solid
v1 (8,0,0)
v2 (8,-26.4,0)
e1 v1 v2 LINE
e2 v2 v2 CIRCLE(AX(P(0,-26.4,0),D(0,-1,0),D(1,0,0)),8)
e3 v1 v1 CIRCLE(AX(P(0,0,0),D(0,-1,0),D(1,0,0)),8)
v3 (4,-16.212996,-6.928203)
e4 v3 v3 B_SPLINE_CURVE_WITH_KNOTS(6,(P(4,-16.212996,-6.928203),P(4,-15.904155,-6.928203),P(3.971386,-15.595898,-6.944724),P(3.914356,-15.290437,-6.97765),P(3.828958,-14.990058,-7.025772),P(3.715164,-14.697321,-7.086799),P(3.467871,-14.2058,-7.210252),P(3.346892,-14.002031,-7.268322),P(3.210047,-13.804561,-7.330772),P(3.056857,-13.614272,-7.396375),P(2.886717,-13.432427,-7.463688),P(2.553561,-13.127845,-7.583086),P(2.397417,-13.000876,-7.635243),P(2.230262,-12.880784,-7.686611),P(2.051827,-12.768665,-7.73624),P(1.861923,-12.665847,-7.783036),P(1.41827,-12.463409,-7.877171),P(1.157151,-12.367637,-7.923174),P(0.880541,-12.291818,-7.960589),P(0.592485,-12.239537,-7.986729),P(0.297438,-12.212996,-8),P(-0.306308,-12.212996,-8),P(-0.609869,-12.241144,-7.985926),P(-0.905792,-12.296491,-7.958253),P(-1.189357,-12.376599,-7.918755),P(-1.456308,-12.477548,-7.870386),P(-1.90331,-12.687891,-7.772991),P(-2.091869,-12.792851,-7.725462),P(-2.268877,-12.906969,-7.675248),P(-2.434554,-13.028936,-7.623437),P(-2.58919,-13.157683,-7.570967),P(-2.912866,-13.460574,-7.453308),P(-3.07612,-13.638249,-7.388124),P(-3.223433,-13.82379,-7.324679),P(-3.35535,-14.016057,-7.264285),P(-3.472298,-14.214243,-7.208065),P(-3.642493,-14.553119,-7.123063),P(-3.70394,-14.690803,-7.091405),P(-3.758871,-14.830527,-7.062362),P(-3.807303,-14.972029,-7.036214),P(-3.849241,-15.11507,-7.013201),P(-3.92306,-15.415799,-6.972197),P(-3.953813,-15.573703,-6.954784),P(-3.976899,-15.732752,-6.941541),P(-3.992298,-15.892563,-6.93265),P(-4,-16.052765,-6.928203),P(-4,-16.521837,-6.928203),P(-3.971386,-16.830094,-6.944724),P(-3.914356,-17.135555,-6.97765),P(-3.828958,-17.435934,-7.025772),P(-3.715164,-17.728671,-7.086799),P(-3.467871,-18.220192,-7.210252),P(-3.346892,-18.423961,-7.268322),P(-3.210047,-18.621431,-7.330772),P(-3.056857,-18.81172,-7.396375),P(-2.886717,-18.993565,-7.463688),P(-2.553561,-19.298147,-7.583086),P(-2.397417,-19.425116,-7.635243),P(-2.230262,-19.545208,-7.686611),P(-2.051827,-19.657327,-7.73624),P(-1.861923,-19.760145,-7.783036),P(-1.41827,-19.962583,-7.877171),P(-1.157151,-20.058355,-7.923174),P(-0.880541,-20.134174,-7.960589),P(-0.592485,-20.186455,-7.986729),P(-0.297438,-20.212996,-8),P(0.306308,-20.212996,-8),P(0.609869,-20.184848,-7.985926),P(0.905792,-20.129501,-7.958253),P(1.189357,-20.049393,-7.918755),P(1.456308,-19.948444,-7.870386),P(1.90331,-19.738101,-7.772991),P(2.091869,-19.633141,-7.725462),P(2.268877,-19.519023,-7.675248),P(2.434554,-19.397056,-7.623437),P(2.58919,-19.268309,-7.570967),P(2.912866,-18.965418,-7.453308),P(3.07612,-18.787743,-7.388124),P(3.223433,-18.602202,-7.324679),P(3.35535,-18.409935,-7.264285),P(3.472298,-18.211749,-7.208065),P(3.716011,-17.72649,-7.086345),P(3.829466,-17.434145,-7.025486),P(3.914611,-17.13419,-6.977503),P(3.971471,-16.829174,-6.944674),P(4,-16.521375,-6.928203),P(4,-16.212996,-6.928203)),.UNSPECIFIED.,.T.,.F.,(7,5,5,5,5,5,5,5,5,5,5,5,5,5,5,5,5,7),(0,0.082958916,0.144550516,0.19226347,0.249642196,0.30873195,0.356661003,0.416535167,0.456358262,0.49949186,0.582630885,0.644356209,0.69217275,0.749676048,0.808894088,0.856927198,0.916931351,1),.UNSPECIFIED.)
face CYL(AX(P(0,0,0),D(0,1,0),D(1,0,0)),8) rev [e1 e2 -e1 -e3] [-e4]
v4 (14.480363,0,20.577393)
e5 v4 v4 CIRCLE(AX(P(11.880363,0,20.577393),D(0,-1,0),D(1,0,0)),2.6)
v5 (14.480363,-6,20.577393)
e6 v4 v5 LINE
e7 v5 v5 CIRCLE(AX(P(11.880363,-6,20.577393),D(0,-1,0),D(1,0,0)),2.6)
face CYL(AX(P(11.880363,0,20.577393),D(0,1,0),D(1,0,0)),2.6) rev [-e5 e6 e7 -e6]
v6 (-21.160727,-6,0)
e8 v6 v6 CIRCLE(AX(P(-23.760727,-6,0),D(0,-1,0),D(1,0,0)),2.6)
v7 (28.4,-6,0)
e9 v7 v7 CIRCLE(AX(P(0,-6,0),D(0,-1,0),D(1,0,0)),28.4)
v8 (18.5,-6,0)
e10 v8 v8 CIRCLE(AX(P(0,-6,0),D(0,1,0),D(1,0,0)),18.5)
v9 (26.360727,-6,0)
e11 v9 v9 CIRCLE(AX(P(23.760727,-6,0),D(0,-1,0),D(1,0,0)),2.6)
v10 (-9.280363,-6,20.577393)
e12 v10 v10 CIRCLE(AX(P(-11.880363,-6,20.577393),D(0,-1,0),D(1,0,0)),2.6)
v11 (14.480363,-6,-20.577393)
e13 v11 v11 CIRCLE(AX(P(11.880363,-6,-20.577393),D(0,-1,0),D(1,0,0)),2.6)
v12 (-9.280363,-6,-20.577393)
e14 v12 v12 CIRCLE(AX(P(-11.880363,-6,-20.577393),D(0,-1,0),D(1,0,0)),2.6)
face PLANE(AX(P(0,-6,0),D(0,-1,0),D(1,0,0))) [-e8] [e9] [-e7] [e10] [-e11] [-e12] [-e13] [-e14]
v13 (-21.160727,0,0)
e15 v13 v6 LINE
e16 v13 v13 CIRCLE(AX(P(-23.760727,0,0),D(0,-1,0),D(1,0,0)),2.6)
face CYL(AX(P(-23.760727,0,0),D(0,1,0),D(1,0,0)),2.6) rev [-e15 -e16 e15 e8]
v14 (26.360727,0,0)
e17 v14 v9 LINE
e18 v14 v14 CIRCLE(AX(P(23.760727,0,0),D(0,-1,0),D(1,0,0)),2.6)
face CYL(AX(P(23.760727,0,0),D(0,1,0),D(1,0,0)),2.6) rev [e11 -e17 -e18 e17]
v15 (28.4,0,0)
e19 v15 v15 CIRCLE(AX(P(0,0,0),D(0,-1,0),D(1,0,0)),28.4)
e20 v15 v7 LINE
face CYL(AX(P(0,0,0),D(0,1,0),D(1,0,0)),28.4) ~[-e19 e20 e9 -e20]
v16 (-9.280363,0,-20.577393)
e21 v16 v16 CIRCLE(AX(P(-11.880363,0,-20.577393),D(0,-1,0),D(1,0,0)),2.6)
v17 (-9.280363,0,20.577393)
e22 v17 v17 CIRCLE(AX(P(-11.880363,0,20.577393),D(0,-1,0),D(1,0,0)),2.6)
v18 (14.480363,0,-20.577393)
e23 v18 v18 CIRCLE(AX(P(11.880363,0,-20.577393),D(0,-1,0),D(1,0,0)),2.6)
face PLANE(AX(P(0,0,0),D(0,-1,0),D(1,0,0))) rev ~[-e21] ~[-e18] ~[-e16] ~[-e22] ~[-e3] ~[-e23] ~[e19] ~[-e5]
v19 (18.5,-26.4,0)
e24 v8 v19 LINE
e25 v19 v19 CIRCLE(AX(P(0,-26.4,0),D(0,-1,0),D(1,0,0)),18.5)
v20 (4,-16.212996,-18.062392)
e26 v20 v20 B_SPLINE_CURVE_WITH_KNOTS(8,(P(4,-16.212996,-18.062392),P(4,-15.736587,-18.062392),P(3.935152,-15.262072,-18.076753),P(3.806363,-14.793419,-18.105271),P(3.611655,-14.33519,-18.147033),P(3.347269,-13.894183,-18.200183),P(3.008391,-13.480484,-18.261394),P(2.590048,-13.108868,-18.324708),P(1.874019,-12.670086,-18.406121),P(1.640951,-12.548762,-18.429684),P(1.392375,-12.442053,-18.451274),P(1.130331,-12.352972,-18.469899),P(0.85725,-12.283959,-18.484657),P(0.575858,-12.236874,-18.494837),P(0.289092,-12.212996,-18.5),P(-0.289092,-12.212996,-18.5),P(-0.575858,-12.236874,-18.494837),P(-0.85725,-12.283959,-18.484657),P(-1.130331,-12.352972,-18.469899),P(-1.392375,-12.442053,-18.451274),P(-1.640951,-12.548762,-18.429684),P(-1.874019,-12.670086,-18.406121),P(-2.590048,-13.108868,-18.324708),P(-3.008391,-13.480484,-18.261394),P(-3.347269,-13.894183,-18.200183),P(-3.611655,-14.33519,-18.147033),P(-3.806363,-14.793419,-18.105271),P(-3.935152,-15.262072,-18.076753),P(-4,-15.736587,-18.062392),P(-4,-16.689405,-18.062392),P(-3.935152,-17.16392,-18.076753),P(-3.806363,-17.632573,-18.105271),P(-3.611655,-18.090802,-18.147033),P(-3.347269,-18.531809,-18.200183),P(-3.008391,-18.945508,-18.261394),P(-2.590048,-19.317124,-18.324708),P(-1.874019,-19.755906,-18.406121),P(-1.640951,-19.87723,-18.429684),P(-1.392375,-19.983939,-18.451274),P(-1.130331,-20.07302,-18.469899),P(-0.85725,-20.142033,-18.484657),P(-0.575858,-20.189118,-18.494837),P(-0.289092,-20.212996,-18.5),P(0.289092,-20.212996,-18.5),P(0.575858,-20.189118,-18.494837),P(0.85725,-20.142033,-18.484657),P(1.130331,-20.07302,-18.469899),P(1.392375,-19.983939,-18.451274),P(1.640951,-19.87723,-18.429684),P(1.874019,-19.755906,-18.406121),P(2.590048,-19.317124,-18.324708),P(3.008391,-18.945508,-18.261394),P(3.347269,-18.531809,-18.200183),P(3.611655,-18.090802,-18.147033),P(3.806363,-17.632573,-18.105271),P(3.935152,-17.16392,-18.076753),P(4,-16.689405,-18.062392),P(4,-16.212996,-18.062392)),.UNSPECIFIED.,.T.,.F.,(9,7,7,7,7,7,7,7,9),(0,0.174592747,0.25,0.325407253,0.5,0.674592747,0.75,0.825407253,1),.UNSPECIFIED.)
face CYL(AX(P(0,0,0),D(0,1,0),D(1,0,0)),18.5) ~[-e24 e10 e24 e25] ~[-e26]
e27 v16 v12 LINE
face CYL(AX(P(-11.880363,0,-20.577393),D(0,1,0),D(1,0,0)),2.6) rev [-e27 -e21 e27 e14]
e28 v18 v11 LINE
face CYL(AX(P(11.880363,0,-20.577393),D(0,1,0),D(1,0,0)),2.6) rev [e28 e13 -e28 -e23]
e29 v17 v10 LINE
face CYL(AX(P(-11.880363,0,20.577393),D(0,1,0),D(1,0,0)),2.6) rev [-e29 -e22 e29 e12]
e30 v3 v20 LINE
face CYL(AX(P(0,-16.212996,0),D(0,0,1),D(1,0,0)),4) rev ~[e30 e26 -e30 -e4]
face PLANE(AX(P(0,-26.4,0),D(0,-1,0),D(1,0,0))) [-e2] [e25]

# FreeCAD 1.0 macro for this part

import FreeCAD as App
import Part
import Sketcher
from FreeCAD import Vector
Q = App.Units.Quantity

doc = App.newDocument("Part")
body = doc.addObject("PartDesign::Body", "Body")

sketch1 = body.newObject("Sketcher::SketchObject", "Sketch")
sketch1.AttachmentSupport = (doc.getObject("XZ_Plane"), [""])
sketch1.MapMode = "FlatFace"
sketch1.addGeometry(Part.Circle(Vector(0, 0, 0), Vector(0, 0, 1), 18), False)
sketch1.addConstraint(Sketcher.Constraint("Coincident", 0, 3, -1, 1))
sketch1.addConstraint(Sketcher.Constraint("Diameter", 0, Q("37 mm")))
pad1 = body.newObject("PartDesign::Pad", "Pad")
pad1.Profile = sketch1
pad1.Length = 26.4

sketch2 = body.newObject("Sketcher::SketchObject", "Sketch001")
sketch2.AttachmentSupport = (doc.getObject("XZ_Plane"), [""])
sketch2.MapMode = "FlatFace"
sketch2.addGeometry(Part.Circle(Vector(0, 0, 0), Vector(0, 0, 1), 28), False)
sketch2.addConstraint(Sketcher.Constraint("Coincident", 0, 3, -1, 1))
sketch2.addConstraint(Sketcher.Constraint("Diameter", 0, Q("56.8 mm")))
pad2 = body.newObject("PartDesign::Pad", "Pad001")
pad2.Profile = sketch2
pad2.Length = 6

sketch3 = body.newObject("Sketcher::SketchObject", "Sketch002")
sketch3.AttachmentSupport = (doc.getObject("XZ_Plane"), [""])
sketch3.MapMode = "FlatFace"
sketch3.addGeometry(Part.Circle(Vector(0, 0, 0), Vector(0, 0, 1), 8), False)
sketch3.addConstraint(Sketcher.Constraint("Coincident", 0, 3, -1, 1))
sketch3.addConstraint(Sketcher.Constraint("Diameter", 0, Q("16 mm")))
pocket1 = body.newObject("PartDesign::Pocket", "Pocket")
pocket1.Profile = sketch3
pocket1.Length = 26.4
pocket1.Reversed = True

sketch4 = body.newObject("Sketcher::SketchObject", "Sketch003")
sketch4.AttachmentSupport = (doc.getObject("XZ_Plane"), [""])
sketch4.MapMode = "FlatFace"
sketch4.addGeometry(Part.Circle(Vector(-23.8, 0, 0), Vector(0, 0, 1), 2.6), False)
sketch4.addGeometry(Part.Circle(Vector(-11.9, -20.6, 0), Vector(0, 0, 1), 2.6), False)
sketch4.addGeometry(Part.Circle(Vector(11.9, -20.6, 0), Vector(0, 0, 1), 2.6), False)
sketch4.addGeometry(Part.Circle(Vector(23.8, 0, 0), Vector(0, 0, 1), 2.6), False)
sketch4.addGeometry(Part.Circle(Vector(11.9, 20.6, 0), Vector(0, 0, 1), 2.6), False)
sketch4.addGeometry(Part.Circle(Vector(-11.9, 20.6, 0), Vector(0, 0, 1), 2.6), False)
sketch4.addConstraint(Sketcher.Constraint("Equal", 0, 1))
sketch4.addConstraint(Sketcher.Constraint("Equal", 1, 2))
sketch4.addConstraint(Sketcher.Constraint("Equal", 2, 3))
sketch4.addConstraint(Sketcher.Constraint("Equal", 3, 4))
sketch4.addConstraint(Sketcher.Constraint("Equal", 4, 5))
sketch4.addConstraint(Sketcher.Constraint("Symmetric", 0, 3, 3, 3, -1, 1))
sketch4.addConstraint(Sketcher.Constraint("Symmetric", 1, 3, 4, 3, -1, 1))
sketch4.addConstraint(Sketcher.Constraint("Symmetric", 2, 3, 5, 3, -1, 1))
sketch4.addConstraint(Sketcher.Constraint("Symmetric", 1, 3, 2, 3, -2))
sketch4.addConstraint(Sketcher.Constraint("PointOnObject", 0, 3, -1))
sketch4.addConstraint(Sketcher.Constraint("Diameter", 0, Q("5.2 mm")))
sketch4.addConstraint(Sketcher.Constraint("DistanceX", 0, 3, 2, 3, Q("35.64109 mm")))
sketch4.addConstraint(Sketcher.Constraint("DistanceX", 0, 3, -1, 1, Q("23.760727 mm")))
sketch4.addConstraint(Sketcher.Constraint("DistanceY", 1, 3, -1, 1, Q("20.577393 mm")))
pocket2 = body.newObject("PartDesign::Pocket", "Pocket001")
pocket2.Profile = sketch4
pocket2.Length = 6
pocket2.Reversed = True

sketch5 = body.newObject("Sketcher::SketchObject", "Sketch004")
sketch5.AttachmentSupport = (doc.getObject("XY_Plane"), [""])
sketch5.MapMode = "FlatFace"
sketch5.addGeometry(Part.Circle(Vector(0, -16.2, 0), Vector(0, 0, 1), 4), False)
sketch5.addConstraint(Sketcher.Constraint("PointOnObject", 0, 3, -2))
sketch5.addConstraint(Sketcher.Constraint("Diameter", 0, Q("8 mm")))
sketch5.addConstraint(Sketcher.Constraint("DistanceY", 0, 3, -1, 1, Q("16.212996 mm")))
pocket3 = body.newObject("PartDesign::Pocket", "Pocket002")
pocket3.Profile = sketch5
pocket3.Length = 28

doc.recompute()
